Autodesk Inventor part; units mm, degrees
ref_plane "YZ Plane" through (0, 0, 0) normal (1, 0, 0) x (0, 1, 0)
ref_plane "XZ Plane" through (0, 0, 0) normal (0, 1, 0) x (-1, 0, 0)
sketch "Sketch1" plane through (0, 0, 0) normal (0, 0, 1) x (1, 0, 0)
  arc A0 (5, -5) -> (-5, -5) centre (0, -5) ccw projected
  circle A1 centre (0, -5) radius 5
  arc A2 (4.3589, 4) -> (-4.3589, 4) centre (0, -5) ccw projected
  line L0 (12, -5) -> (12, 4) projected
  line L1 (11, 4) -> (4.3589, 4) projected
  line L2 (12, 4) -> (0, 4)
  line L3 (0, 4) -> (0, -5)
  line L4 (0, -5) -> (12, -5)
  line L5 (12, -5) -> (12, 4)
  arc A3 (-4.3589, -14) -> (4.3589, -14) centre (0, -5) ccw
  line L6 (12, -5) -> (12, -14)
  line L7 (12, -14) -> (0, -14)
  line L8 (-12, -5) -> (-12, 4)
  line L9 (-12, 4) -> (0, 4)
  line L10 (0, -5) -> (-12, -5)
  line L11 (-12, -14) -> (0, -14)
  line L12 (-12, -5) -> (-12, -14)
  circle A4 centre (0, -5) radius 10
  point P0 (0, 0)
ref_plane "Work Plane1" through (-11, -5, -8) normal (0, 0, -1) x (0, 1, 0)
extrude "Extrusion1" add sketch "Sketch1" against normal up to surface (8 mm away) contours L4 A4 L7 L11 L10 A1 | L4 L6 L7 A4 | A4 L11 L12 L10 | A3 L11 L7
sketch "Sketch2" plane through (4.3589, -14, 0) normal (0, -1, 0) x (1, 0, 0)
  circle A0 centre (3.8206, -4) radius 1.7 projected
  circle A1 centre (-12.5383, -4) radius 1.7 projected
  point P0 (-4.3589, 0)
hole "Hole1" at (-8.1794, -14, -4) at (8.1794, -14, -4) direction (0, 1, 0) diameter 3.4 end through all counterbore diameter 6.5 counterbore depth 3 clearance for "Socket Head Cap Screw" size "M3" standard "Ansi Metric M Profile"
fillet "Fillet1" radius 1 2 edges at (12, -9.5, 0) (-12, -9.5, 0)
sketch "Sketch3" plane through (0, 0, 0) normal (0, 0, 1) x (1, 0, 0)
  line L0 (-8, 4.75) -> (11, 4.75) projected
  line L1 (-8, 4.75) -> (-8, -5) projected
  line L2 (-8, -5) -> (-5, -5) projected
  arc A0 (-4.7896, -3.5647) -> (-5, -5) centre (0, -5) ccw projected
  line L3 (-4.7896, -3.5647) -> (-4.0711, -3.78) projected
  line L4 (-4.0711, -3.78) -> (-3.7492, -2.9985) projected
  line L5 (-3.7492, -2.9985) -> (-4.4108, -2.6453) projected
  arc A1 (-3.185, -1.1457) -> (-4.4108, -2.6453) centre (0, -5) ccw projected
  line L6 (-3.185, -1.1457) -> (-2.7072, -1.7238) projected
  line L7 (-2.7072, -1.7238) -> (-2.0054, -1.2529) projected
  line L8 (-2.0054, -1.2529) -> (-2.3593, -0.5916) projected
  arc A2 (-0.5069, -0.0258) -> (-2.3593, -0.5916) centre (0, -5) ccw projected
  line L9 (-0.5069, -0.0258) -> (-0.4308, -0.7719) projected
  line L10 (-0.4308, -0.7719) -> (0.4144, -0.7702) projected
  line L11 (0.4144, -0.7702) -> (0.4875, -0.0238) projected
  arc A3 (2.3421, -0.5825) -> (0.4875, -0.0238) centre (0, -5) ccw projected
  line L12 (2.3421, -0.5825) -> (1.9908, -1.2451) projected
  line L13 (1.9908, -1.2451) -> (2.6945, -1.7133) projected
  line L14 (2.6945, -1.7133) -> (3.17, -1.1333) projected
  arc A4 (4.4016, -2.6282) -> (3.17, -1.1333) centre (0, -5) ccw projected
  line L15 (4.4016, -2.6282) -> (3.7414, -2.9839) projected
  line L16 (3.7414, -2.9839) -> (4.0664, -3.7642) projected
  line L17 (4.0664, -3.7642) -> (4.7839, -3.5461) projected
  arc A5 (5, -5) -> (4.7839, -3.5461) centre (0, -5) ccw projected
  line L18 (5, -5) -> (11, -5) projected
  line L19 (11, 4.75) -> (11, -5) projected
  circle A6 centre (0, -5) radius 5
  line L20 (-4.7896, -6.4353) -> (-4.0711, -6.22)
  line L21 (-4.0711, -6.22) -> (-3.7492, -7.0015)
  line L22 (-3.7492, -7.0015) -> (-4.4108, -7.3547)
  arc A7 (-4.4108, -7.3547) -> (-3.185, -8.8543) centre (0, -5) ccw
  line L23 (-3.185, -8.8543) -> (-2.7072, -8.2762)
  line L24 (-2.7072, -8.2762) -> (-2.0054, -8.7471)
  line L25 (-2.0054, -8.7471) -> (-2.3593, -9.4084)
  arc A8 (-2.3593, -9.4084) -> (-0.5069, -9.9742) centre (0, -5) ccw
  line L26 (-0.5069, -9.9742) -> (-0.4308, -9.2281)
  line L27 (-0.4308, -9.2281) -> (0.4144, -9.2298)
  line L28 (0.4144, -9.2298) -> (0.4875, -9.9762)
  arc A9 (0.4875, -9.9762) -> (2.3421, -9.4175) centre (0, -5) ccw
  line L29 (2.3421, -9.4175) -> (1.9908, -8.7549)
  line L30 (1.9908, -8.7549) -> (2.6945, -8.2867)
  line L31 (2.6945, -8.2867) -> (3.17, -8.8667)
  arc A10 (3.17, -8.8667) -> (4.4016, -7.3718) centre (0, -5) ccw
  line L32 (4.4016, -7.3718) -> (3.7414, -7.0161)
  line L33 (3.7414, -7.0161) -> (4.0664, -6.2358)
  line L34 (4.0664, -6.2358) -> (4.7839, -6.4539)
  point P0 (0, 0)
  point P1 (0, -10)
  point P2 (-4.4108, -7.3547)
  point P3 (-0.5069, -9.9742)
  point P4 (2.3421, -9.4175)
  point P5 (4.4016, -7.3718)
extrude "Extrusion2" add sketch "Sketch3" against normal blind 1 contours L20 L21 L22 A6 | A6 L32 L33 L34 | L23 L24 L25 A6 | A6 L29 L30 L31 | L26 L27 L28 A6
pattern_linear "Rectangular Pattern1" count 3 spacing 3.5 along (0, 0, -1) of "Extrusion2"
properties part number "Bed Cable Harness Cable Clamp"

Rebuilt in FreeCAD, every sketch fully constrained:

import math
import FreeCAD as App
import Part
import Sketcher

V = App.Vector
Q = App.Units.Quantity


def edges_at(feature, points):
    """Names of the edges that pass closest to the given points."""
    edges = feature.Shape.Edges
    near = lambda p: min(range(len(edges)), key=lambda i: edges[i].distToShape(Part.Vertex(*p))[0])
    return sorted({f"Edge{near(p) + 1}" for p in points})

doc = App.newDocument("Part")
body = doc.addObject("PartDesign::Body", "Body")

# Sketch on XY plane
sketch1 = doc.addObject("Sketcher::SketchObject", "Sketch")
body.addObject(sketch1)
sketch1.AttachmentSupport = (doc.XY_Plane, [""])
sketch1.MapMode = "FlatFace"
sketch1.addGeometry([
    Part.ArcOfCircle(Part.Circle(V(0, -5, 0), V(0, 0, 1), 5), math.radians(180), math.radians(360)),  # 0
    Part.LineSegment(V(-5, -5, 0), V(-12, -5, 0)),  # 1
    Part.LineSegment(V(-12, -5, 0), V(-12, -14, 0)),  # 2
    Part.LineSegment(V(-12, -14, 0), V(-4.3589, -14, 0)),  # 3
    Part.ArcOfCircle(Part.Circle(V(0, -5, 0), V(0, 0, 1), 10), math.radians(-115.841938), math.radians(-64.158062)),  # 4
    Part.LineSegment(V(4.3589, -14, 0), V(12, -14, 0)),  # 5
    Part.LineSegment(V(12, -14, 0), V(12, -5, 0)),  # 6
    Part.LineSegment(V(12, -5, 0), V(5, -5, 0)),  # 7
], False)
sketch1.addConstraint([
    Sketcher.Constraint("Coincident", 0, 1, 1, 1),
    Sketcher.Constraint("Coincident", 1, 2, 2, 1),
    Sketcher.Constraint("Coincident", 2, 2, 3, 1),
    Sketcher.Constraint("Coincident", 3, 2, 4, 1),
    Sketcher.Constraint("Coincident", 4, 2, 5, 1),
    Sketcher.Constraint("Coincident", 5, 2, 6, 1),
    Sketcher.Constraint("Coincident", 6, 2, 7, 1),
    Sketcher.Constraint("Coincident", 7, 2, 0, 2),
    Sketcher.Constraint("Horizontal", 1),
    Sketcher.Constraint("Vertical", 2),
    Sketcher.Constraint("Horizontal", 3),
    Sketcher.Constraint("Horizontal", 5),
    Sketcher.Constraint("Vertical", 6),
    Sketcher.Constraint("Horizontal", 7),
    Sketcher.Constraint("Coincident", 4, 3, 0, 3),
    Sketcher.Constraint("Symmetric", 3, 2, 4, 2, -2),
    Sketcher.Constraint("Symmetric", 1, 2, 6, 2, -2),
    Sketcher.Constraint("Horizontal", 4, 3, 0, 1),
    Sketcher.Constraint("Radius", 0, 5.0),
    Sketcher.Constraint("Radius", 4, 10.0),
    Sketcher.Constraint("DistanceX", 1, 2, 1, 1, 7.0),
    Sketcher.Constraint("DistanceY", 2, 2, 2, 1, 9.0),
    Sketcher.Constraint("DistanceY", 0, 3, -1, 1, 5.0),
])
pad1 = doc.addObject("PartDesign::Pad", "Pad")
body.addObject(pad1)
pad1.Profile = sketch1
pad1.Length = 8
pad1.Reversed = True

# Sketch on XZ plane
sketch2 = doc.addObject("Sketcher::SketchObject", "Sketch001")
body.addObject(sketch2)
sketch2.AttachmentSupport = (doc.XZ_Plane, [""])
sketch2.MapMode = "FlatFace"
sketch2.AttachmentOffset = App.Placement(V(0, 0, 14), App.Rotation())
sketch2.addGeometry([
    Part.Circle(V(-8.1794, -4, 0), V(0, 0, 1), 1.7),
    Part.Circle(V(8.1794, -4, 0), V(0, 0, 1), 1.7),
], False)
sketch2.addConstraint([
    Sketcher.Constraint("Equal", 0, 1),
    Sketcher.Constraint("Symmetric", 0, 3, 1, 3, -2),
    Sketcher.Constraint("Diameter", 0, 3.4),
    Sketcher.Constraint("DistanceY", 0, 3, -1, 1, 4.0),
    Sketcher.Constraint("DistanceX", 0, 3, -1, 1, 8.1794),
])
doc.recompute()
hole = doc.addObject("PartDesign::Hole", "Hole")
body.addObject(hole)
hole.Profile = sketch2
hole.ThreadType = "None"
hole.Diameter = 3.4
hole.DepthType = "ThroughAll"
hole.HoleCutType = "Counterbore"
hole.HoleCutDiameter = 6.5
hole.HoleCutDepth = 3
doc.recompute()

fillet = doc.addObject("PartDesign::Fillet", "Fillet")
body.addObject(fillet)
fillet.Base = (hole, edges_at(hole, [(12, -9.5, 0), (-12, -9.5, 0)]))
fillet.Radius = 1

# Sketch on XY plane
sketch3 = doc.addObject("Sketcher::SketchObject", "Sketch002")
body.addObject(sketch3)
sketch3.AttachmentSupport = (doc.XY_Plane, [""])
sketch3.MapMode = "FlatFace"
sketch3.addGeometry([
    Part.LineSegment(V(-4.0711, -6.22, 0), V(-4.7896, -6.4353, 0)),  # 0
    Part.ArcOfCircle(Part.Circle(V(0, -5, 0), V(0, 0, 1), 5), math.radians(-163.318098), math.radians(-151.904527)),  # 1
    Part.LineSegment(V(-4.4108, -7.3547, 0), V(-3.7492, -7.0015, 0)),  # 2
    Part.LineSegment(V(-3.7492, -7.0015, 0), V(-4.0711, -6.22, 0)),  # 3
    Part.ArcOfCircle(Part.Circle(V(0, -5, 0), V(0, 0, 1), 5), math.radians(-28.317986), math.radians(-16.904825)),  # 4
    Part.LineSegment(V(4.7839, -6.4539, 0), V(4.0664, -6.2358, 0)),  # 5
    Part.LineSegment(V(4.0664, -6.2358, 0), V(3.7414, -7.0161, 0)),  # 6
    Part.LineSegment(V(3.7414, -7.0161, 0), V(4.4016, -7.3718, 0)),  # 7
    Part.LineSegment(V(-2.7072, -8.2762, 0), V(-3.185, -8.8543, 0)),  # 8
    Part.ArcOfCircle(Part.Circle(V(0, -5, 0), V(0, 0, 1), 5), math.radians(-129.568618), math.radians(-118.154925)),  # 9
    Part.LineSegment(V(-2.3593, -9.4084, 0), V(-2.0054, -8.7471, 0)),  # 10
    Part.LineSegment(V(-2.0054, -8.7471, 0), V(-2.7072, -8.2762, 0)),  # 11
    Part.ArcOfCircle(Part.Circle(V(0, -5, 0), V(0, 0, 1), 5), math.radians(-62.068057), math.radians(-50.654397)),  # 12
    Part.LineSegment(V(3.17, -8.8667, 0), V(2.6945, -8.2867, 0)),  # 13
    Part.LineSegment(V(2.6945, -8.2867, 0), V(1.9908, -8.7549, 0)),  # 14
    Part.LineSegment(V(1.9908, -8.7549, 0), V(2.3421, -9.4175, 0)),  # 15
    Part.LineSegment(V(-0.4308, -9.2281, 0), V(-0.5069, -9.9742, 0)),  # 16
    Part.ArcOfCircle(Part.Circle(V(0, -5, 0), V(0, 0, 1), 5), math.radians(-95.818688), math.radians(-84.404798)),  # 17
    Part.LineSegment(V(0.4875, -9.9762, 0), V(0.4144, -9.2298, 0)),  # 18
    Part.LineSegment(V(0.4144, -9.2298, 0), V(-0.4308, -9.2281, 0)),  # 19
], False)
sketch3.addConstraint([
    Sketcher.Constraint("Coincident", 0, 2, 1, 1),
    Sketcher.Constraint("Coincident", 1, 2, 2, 1),
    Sketcher.Constraint("Coincident", 2, 2, 3, 1),
    Sketcher.Constraint("Coincident", 3, 2, 0, 1),
    Sketcher.Constraint("Coincident", 4, 2, 5, 1),
    Sketcher.Constraint("Coincident", 5, 2, 6, 1),
    Sketcher.Constraint("Coincident", 6, 2, 7, 1),
    Sketcher.Constraint("Coincident", 7, 2, 4, 1),
    Sketcher.Constraint("Coincident", 8, 2, 9, 1),
    Sketcher.Constraint("Coincident", 9, 2, 10, 1),
    Sketcher.Constraint("Coincident", 10, 2, 11, 1),
    Sketcher.Constraint("Coincident", 11, 2, 8, 1),
    Sketcher.Constraint("Coincident", 12, 2, 13, 1),
    Sketcher.Constraint("Coincident", 13, 2, 14, 1),
    Sketcher.Constraint("Coincident", 14, 2, 15, 1),
    Sketcher.Constraint("Coincident", 15, 2, 12, 1),
    Sketcher.Constraint("Coincident", 16, 2, 17, 1),
    Sketcher.Constraint("Coincident", 17, 2, 18, 1),
    Sketcher.Constraint("Coincident", 18, 2, 19, 1),
    Sketcher.Constraint("Coincident", 19, 2, 16, 1),
    Sketcher.Constraint("Coincident", 4, 3, 1, 3),
    Sketcher.Constraint("Coincident", 9, 3, 1, 3),
    Sketcher.Constraint("Coincident", 12, 3, 1, 3),
    Sketcher.Constraint("Coincident", 17, 3, 1, 3),
    Sketcher.Constraint("Equal", 1, 4),
    Sketcher.Constraint("Equal", 4, 9),
    Sketcher.Constraint("Equal", 9, 12),
    Sketcher.Constraint("Equal", 12, 17),
    Sketcher.Constraint("PointOnObject", 1, 3, -2),
    Sketcher.Constraint("Equal", 0, 2),
    Sketcher.Constraint("Equal", 2, 5),
    Sketcher.Constraint("Equal", 3, 6),
    Sketcher.Constraint("Equal", 5, 7),
    Sketcher.Constraint("Equal", 7, 8),
    Sketcher.Constraint("Equal", 8, 10),
    Sketcher.Constraint("Equal", 6, 11),
    Sketcher.Constraint("Equal", 10, 13),
    Sketcher.Constraint("Equal", 11, 14),
    Sketcher.Constraint("Equal", 13, 15),
    Sketcher.Constraint("Equal", 15, 16),
    Sketcher.Constraint("Equal", 16, 18),
    Sketcher.Constraint("Equal", 14, 19),
    Sketcher.Constraint("Radius", 1, 5.0),
    Sketcher.Constraint("DistanceY", 1, 3, -1, 1, 5.0),
    Sketcher.Constraint("Angle", 0, Q("-163.319 deg")),
    Sketcher.Constraint("Angle", 11, Q("146.1388 deg")),
    Sketcher.Constraint("Distance", 0, 0.75),
    Sketcher.Constraint("DistanceY", 3, 2, -1, 1, 6.22),
    Sketcher.Constraint("DistanceX", -1, 1, 12, 2, 3.17),
    Sketcher.Constraint("DistanceX", 2, 2, 9, 2, 1.39),
    Sketcher.Constraint("DistanceY", 12, 2, 13, 2, 0.58),
    Sketcher.Constraint("DistanceY", 16, 2, 8, 2, 1.12),
    Sketcher.Constraint("DistanceX", 18, 2, 13, 2, 2.28),
    Sketcher.Constraint("DistanceX", -1, 1, 4, 2, 4.784),
    Sketcher.Constraint("DistanceY", 6, 2, -1, 1, 7.016),
    Sketcher.Constraint("DistanceX", 8, 2, -1, 1, 3.185),
    Sketcher.Constraint("DistanceY", 10, 2, -1, 1, 8.747),
    Sketcher.Constraint("DistanceX", -1, 1, 15, 2, 2.342),
    Sketcher.Constraint("DistanceY", 7, 2, 4, 2, 0.918),
    Sketcher.Constraint("DistanceY", 17, 2, 16, 2, 0.002),
    Sketcher.Constraint("DistanceX", 1, 2, -1, 1, 4.4108),
])
pad2 = doc.addObject("PartDesign::Pad", "Pad001")
body.addObject(pad2)
pad2.Profile = sketch3
pad2.Length = 1
pad2.Reversed = True
doc.recompute()

linearpattern = doc.addObject("PartDesign::LinearPattern", "LinearPattern")
body.addObject(linearpattern)
linearpattern.Originals = [pad2]
linearpattern.Direction = (doc.Z_Axis, [""])
linearpattern.Mode = "offset"
linearpattern.Offset = 3.5
linearpattern.Occurrences = 3
linearpattern.Reversed = True
body.Tip = linearpattern

doc.recompute()
